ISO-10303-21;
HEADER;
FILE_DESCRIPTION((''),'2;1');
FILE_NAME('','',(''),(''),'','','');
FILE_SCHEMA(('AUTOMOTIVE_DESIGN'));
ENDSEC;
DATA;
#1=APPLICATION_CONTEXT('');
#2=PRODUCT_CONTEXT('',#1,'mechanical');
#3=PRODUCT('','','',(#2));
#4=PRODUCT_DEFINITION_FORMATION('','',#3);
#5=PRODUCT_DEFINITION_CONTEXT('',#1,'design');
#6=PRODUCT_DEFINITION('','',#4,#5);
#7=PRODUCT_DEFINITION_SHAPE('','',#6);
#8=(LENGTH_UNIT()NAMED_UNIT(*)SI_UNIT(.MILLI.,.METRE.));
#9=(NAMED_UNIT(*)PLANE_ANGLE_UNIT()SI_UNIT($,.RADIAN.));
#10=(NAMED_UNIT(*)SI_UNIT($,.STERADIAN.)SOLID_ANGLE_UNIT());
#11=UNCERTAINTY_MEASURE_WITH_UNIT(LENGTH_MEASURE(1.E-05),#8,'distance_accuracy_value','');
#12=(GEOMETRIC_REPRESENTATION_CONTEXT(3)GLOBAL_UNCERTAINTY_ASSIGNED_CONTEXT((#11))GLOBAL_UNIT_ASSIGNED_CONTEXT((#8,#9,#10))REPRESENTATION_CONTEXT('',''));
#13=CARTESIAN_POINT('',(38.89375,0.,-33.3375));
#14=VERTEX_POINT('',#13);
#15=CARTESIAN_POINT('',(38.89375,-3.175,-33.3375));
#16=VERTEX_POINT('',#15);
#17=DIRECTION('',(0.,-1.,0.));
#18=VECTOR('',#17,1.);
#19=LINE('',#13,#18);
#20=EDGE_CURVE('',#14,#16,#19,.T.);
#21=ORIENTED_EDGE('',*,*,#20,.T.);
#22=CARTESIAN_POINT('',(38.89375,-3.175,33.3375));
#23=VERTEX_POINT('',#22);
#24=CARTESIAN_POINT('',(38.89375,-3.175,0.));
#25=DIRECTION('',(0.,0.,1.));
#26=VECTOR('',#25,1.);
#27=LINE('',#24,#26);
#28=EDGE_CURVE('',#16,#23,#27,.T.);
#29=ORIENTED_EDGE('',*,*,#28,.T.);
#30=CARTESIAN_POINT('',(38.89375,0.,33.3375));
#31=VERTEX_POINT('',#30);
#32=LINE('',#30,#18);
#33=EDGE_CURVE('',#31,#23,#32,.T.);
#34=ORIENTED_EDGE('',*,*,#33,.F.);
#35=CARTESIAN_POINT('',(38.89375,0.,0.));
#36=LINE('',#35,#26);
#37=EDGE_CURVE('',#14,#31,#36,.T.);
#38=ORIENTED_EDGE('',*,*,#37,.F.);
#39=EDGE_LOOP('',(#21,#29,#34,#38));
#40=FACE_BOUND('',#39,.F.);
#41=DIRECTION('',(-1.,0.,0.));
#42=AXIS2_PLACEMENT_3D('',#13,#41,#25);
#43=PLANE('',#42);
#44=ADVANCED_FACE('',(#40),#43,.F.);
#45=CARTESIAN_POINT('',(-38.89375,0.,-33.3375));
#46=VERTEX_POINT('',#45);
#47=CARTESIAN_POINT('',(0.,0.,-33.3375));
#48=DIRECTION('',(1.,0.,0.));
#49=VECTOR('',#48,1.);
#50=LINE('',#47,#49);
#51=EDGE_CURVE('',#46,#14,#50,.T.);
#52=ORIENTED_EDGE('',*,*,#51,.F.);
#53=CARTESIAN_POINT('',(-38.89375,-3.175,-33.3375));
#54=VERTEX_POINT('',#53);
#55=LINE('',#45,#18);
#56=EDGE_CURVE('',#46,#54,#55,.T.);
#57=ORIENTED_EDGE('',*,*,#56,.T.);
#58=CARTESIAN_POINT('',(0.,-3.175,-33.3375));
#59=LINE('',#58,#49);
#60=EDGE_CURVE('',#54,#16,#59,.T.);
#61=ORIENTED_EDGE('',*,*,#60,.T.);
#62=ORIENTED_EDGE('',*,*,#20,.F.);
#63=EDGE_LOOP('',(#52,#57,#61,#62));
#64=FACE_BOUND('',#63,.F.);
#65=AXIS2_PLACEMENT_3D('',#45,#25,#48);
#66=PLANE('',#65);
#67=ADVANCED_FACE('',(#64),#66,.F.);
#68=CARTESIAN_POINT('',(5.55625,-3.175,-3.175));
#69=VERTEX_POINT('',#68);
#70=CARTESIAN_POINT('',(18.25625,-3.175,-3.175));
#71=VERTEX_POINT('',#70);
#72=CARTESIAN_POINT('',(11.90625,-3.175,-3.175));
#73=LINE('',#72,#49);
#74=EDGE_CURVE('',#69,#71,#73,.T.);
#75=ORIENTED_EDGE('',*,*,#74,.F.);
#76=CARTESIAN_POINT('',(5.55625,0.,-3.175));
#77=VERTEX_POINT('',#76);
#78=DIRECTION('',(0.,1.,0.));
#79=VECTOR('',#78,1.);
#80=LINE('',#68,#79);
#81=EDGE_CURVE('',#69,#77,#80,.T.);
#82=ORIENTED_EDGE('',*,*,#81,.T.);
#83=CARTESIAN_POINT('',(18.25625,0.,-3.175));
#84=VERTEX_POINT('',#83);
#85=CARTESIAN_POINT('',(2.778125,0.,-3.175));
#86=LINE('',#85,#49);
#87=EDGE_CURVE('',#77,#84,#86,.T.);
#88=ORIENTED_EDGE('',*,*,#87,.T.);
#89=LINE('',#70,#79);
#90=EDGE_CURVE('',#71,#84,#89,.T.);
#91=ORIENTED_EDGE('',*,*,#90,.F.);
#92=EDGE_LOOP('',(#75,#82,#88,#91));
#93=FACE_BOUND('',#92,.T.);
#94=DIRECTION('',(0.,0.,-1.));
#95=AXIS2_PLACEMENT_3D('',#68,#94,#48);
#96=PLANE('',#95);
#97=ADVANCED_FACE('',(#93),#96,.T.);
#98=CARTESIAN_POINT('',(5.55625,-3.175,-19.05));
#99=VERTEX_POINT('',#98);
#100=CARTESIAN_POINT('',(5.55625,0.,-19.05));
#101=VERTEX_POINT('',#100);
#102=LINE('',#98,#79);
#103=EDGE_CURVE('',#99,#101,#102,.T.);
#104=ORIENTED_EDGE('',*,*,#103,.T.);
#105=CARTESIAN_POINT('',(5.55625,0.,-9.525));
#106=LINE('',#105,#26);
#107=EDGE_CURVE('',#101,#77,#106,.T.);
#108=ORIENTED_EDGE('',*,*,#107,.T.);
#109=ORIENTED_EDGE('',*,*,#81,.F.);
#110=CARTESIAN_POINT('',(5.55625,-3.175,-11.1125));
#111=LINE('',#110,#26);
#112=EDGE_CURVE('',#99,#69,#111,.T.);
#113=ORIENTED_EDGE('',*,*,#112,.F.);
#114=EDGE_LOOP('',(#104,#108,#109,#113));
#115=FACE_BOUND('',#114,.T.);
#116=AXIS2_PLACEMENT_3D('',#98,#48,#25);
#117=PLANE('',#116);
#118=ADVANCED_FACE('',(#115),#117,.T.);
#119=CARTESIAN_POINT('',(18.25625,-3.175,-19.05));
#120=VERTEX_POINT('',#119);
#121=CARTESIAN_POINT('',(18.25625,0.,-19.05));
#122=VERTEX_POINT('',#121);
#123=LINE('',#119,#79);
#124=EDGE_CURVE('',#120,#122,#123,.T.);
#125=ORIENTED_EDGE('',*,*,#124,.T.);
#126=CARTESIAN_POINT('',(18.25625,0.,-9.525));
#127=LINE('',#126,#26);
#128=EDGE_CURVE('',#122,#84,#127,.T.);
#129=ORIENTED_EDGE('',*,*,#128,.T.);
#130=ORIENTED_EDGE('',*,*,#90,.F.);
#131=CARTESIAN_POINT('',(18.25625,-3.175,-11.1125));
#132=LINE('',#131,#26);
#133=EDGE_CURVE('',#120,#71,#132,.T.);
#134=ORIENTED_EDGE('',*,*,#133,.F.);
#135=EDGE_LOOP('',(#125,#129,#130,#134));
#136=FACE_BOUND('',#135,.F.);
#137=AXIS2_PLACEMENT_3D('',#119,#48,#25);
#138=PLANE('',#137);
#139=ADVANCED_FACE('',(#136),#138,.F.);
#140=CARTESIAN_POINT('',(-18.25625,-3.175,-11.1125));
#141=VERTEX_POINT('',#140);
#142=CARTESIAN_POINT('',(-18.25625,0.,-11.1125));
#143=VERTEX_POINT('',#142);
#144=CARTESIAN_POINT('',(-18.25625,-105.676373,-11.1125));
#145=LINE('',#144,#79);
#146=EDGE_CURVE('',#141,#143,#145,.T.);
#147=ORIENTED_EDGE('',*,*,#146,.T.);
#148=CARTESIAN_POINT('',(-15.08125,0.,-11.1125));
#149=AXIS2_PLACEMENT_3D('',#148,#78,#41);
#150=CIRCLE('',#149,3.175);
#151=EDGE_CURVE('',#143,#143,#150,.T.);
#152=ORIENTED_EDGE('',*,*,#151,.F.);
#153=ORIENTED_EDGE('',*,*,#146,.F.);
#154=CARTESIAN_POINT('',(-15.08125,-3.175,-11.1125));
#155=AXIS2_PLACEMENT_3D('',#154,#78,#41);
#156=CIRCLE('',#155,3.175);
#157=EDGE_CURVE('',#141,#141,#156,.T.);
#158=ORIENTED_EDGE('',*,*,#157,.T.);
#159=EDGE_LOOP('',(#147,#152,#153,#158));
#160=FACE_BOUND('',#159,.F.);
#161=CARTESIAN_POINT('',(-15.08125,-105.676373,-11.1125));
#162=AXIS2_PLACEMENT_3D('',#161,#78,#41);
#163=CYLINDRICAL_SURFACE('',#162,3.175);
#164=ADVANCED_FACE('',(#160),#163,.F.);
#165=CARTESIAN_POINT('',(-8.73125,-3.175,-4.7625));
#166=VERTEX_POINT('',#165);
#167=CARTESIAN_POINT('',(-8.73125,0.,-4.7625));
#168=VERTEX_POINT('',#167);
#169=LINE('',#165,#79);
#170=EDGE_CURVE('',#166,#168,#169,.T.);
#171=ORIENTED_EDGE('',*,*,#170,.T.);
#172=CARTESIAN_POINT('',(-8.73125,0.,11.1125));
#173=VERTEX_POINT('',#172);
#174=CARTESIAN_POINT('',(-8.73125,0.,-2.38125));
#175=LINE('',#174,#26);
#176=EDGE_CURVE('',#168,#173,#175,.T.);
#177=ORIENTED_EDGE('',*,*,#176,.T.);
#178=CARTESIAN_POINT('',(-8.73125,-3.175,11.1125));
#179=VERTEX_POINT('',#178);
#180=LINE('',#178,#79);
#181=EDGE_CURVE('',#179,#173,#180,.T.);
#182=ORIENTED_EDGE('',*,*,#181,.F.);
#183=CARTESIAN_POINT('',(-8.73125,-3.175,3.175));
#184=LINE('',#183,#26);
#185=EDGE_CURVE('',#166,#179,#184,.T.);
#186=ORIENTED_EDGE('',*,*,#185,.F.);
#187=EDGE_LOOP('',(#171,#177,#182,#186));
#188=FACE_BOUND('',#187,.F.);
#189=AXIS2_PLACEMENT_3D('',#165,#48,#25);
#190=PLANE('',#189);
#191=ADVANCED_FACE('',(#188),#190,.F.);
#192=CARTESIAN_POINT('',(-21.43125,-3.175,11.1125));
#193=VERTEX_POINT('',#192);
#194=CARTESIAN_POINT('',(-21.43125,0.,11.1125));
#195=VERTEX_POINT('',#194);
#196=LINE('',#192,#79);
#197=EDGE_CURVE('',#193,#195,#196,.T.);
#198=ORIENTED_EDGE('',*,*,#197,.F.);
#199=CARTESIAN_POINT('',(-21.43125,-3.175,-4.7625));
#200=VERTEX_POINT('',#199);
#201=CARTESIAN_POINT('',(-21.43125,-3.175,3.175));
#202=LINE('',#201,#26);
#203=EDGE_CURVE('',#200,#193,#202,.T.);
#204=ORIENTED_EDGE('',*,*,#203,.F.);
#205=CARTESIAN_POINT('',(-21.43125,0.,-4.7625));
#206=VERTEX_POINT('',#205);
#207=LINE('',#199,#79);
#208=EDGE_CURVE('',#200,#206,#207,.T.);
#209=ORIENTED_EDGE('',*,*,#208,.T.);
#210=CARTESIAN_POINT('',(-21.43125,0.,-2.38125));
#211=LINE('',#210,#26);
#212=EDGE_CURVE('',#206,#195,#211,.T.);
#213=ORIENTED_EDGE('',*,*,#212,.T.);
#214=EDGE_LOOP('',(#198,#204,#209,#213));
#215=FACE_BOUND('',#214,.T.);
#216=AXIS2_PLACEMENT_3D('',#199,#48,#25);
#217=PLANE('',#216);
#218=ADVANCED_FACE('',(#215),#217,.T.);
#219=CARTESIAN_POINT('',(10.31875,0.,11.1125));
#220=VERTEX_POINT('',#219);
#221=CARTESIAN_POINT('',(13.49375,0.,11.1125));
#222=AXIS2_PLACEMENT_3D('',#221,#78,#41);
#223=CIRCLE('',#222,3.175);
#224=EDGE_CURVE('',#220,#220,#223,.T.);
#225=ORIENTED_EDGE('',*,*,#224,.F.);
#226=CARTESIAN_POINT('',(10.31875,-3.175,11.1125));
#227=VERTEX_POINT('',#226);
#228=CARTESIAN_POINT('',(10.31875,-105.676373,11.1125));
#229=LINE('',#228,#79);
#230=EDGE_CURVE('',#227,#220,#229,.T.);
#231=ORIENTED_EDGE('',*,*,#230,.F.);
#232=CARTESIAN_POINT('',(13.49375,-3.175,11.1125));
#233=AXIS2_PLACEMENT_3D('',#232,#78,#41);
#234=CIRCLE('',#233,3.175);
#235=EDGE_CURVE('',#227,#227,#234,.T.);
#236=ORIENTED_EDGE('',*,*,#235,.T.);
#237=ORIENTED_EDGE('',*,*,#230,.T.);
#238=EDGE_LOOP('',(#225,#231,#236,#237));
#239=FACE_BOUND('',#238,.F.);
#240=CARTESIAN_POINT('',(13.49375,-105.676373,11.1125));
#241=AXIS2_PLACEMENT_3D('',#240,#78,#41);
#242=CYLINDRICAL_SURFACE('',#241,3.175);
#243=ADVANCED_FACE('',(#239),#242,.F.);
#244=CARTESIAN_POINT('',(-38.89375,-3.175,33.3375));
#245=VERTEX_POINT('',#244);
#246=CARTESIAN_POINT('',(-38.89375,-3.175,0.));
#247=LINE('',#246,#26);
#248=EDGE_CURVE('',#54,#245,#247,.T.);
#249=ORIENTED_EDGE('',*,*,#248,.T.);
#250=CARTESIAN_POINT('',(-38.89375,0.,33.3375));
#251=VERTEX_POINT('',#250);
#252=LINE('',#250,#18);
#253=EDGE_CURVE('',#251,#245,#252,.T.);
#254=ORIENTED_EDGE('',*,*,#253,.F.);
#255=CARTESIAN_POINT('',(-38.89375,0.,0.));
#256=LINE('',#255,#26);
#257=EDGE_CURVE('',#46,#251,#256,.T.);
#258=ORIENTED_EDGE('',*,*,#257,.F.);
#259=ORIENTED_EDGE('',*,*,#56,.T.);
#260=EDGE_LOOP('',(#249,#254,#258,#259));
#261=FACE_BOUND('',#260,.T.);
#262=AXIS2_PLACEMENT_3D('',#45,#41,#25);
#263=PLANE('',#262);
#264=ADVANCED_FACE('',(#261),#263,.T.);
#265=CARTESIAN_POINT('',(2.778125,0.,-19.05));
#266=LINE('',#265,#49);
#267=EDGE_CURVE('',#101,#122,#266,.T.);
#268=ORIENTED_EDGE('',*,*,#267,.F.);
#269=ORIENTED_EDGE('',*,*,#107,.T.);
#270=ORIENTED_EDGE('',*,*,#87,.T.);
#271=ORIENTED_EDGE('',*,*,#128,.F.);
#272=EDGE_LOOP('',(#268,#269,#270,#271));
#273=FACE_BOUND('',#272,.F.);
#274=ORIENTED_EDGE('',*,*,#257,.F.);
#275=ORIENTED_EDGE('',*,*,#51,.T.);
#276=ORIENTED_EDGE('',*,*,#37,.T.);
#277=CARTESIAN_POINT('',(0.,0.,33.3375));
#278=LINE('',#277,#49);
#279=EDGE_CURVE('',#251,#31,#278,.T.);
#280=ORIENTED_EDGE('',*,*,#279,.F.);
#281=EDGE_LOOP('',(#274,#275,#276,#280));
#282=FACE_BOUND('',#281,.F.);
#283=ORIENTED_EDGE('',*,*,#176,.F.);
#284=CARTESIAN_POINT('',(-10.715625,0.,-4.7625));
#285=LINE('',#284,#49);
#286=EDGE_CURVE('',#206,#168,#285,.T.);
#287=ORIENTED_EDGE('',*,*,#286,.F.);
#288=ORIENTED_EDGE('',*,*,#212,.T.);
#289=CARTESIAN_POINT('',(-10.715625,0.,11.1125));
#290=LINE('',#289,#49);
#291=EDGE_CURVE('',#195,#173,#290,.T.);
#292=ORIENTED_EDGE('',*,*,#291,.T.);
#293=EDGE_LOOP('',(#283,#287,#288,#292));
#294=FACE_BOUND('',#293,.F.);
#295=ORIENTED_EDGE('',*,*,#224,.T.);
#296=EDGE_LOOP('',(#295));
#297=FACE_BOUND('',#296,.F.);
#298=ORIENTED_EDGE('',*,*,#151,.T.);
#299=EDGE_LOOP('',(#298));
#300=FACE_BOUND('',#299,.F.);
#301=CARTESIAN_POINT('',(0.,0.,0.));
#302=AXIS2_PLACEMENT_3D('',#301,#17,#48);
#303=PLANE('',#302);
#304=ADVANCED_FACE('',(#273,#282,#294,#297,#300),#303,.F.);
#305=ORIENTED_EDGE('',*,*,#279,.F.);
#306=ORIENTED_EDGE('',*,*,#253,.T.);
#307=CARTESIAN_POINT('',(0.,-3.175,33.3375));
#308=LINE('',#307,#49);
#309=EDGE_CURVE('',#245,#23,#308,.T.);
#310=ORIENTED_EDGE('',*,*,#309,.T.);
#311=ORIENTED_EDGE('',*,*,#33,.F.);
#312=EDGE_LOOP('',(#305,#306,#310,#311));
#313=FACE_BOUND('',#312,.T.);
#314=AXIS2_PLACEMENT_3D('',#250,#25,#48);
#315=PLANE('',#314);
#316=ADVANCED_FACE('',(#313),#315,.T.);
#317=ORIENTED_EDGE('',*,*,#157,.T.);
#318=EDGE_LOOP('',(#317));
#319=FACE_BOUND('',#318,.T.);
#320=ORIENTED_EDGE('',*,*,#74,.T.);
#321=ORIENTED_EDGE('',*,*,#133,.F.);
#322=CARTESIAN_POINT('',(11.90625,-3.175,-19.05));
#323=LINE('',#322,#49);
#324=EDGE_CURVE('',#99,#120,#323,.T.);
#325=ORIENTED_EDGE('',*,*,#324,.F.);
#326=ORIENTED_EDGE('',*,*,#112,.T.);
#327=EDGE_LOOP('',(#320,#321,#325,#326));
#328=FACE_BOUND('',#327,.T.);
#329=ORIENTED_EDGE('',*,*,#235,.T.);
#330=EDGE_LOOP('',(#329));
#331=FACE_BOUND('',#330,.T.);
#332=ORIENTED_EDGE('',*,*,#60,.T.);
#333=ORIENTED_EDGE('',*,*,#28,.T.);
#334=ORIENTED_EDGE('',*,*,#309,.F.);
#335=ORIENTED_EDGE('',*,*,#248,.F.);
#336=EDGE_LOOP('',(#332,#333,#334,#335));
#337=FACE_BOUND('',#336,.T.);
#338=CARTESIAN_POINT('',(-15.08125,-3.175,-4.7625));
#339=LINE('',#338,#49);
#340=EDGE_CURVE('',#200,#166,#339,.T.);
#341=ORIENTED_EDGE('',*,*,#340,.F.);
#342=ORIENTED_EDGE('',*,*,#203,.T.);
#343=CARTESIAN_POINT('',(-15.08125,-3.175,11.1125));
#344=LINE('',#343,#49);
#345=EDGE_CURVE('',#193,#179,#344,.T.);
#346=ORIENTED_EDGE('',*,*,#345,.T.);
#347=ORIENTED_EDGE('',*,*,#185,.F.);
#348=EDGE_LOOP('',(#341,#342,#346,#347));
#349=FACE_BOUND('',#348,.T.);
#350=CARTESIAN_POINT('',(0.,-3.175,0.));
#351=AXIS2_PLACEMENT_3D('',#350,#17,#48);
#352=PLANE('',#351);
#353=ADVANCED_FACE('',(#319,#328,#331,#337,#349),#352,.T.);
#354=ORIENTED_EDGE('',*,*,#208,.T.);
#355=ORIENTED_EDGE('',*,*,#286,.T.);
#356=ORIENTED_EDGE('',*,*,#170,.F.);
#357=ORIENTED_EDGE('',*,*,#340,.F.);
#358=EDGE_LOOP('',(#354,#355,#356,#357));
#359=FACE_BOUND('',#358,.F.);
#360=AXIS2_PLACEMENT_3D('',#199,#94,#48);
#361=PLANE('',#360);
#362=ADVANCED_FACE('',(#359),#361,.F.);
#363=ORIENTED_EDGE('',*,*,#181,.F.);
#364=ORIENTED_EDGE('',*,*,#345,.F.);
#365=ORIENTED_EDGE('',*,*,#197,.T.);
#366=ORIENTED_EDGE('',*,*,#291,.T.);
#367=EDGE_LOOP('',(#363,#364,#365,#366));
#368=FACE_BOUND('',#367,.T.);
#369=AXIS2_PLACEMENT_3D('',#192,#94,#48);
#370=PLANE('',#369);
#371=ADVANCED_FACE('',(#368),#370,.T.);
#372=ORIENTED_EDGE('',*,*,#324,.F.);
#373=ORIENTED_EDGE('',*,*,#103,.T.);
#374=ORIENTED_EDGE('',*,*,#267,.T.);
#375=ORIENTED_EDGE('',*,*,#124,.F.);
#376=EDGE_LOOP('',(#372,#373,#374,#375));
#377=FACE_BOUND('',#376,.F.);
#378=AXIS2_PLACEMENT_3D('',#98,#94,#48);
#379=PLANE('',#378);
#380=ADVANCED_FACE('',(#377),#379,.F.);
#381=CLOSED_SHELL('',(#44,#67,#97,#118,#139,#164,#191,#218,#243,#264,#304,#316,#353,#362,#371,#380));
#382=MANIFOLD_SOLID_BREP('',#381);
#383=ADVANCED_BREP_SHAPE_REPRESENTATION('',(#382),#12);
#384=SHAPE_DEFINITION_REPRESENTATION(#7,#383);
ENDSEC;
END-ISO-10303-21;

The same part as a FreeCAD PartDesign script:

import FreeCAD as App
import Part
import Sketcher
from FreeCAD import Vector
Q = App.Units.Quantity

doc = App.newDocument("Part")
body = doc.addObject("PartDesign::Body", "Body")

# Sketch on XZ plane
sketch1 = doc.addObject("Sketcher::SketchObject", "Sketch")
body.addObject(sketch1)
sketch1.AttachmentSupport = (doc.XZ_Plane, [""])
sketch1.MapMode = "FlatFace"
sketch1.addGeometry(Part.LineSegment(Vector(-39, 33, 0), Vector(-39, -33, 0)), False)
sketch1.addGeometry(Part.LineSegment(Vector(-39, -33, 0), Vector(39, -33, 0)), False)
sketch1.addGeometry(Part.LineSegment(Vector(39, -33, 0), Vector(39, 33, 0)), False)
sketch1.addGeometry(Part.LineSegment(Vector(39, 33, 0), Vector(-39, 33, 0)), False)
sketch1.addConstraint(Sketcher.Constraint("Coincident", 0, 2, 1, 1))
sketch1.addConstraint(Sketcher.Constraint("Coincident", 1, 2, 2, 1))
sketch1.addConstraint(Sketcher.Constraint("Coincident", 2, 2, 3, 1))
sketch1.addConstraint(Sketcher.Constraint("Coincident", 3, 2, 0, 1))
sketch1.addConstraint(Sketcher.Constraint("Vertical", 0))
sketch1.addConstraint(Sketcher.Constraint("Horizontal", 1))
sketch1.addConstraint(Sketcher.Constraint("Vertical", 2))
sketch1.addConstraint(Sketcher.Constraint("Horizontal", 3))
sketch1.addConstraint(Sketcher.Constraint("Symmetric", 0, 2, 2, 2, -1, 1))
sketch1.addConstraint(Sketcher.Constraint("DistanceX", 1, 1, 1, 2, Q("3.0625 in")))
sketch1.addConstraint(Sketcher.Constraint("DistanceY", 0, 2, 0, 1, Q("2.625 in")))
pad1 = doc.addObject("PartDesign::Pad", "Pad")
body.addObject(pad1)
pad1.Profile = sketch1
pad1.Length = Q("0.125 in")

# Sketch on XZ plane
sketch2 = doc.addObject("Sketcher::SketchObject", "Sketch001")
body.addObject(sketch2)
sketch2.AttachmentSupport = (doc.XZ_Plane, [""])
sketch2.MapMode = "FlatFace"
sketch2.AttachmentOffset = App.Placement(Vector(0, 0, 0.125 * 25.4), App.Rotation())
sketch2.addGeometry(Part.Circle(Vector(-15.1, -11.1, 0), Vector(0, 0, 1), 3.2), False)
sketch2.addConstraint(Sketcher.Constraint("Diameter", 0, Q("0.25 in")))
sketch2.addConstraint(Sketcher.Constraint("DistanceX", 0, 3, -1, 1, Q("0.59375 in")))
sketch2.addConstraint(Sketcher.Constraint("DistanceY", 0, 3, -1, 1, Q("0.4375 in")))
doc.recompute()
hole = doc.addObject("PartDesign::Hole", "Hole")
body.addObject(hole)
hole.Profile = sketch2
hole.ThreadType = "None"
hole.Diameter = Q("0.25 in")
hole.DepthType = "ThroughAll"

# Sketch on XZ plane
sketch3 = doc.addObject("Sketcher::SketchObject", "Sketch002")
body.addObject(sketch3)
sketch3.AttachmentSupport = (doc.XZ_Plane, [""])
sketch3.MapMode = "FlatFace"
sketch3.AttachmentOffset = App.Placement(Vector(0, 0, 0.125 * 25.4), App.Rotation())
sketch3.addGeometry(Part.Circle(Vector(13.5, 11.1, 0), Vector(0, 0, 1), 3.2), False)
sketch3.addConstraint(Sketcher.Constraint("Diameter", 0, Q("0.25 in")))
sketch3.addConstraint(Sketcher.Constraint("DistanceX", -1, 1, 0, 3, Q("0.53125 in")))
sketch3.addConstraint(Sketcher.Constraint("DistanceY", -1, 1, 0, 3, Q("0.4375 in")))
doc.recompute()
hole2 = doc.addObject("PartDesign::Hole", "Hole001")
body.addObject(hole2)
hole2.Profile = sketch3
hole2.ThreadType = "None"
hole2.Diameter = Q("0.25 in")
hole2.DepthType = "ThroughAll"

# Sketch on XZ plane
sketch4 = doc.addObject("Sketcher::SketchObject", "Sketch003")
body.addObject(sketch4)
sketch4.AttachmentSupport = (doc.XZ_Plane, [""])
sketch4.MapMode = "FlatFace"
sketch4.AttachmentOffset = App.Placement(Vector(0, 0, 0.125 * 25.4), App.Rotation())
sketch4.addGeometry(Part.LineSegment(Vector(-21, 11, 0), Vector(-21, -5, 0)), False)
sketch4.addGeometry(Part.LineSegment(Vector(-21, -5, 0), Vector(-9, -5, 0)), False)
sketch4.addGeometry(Part.LineSegment(Vector(-9, -5, 0), Vector(-9, 11, 0)), False)
sketch4.addGeometry(Part.LineSegment(Vector(-9, 11, 0), Vector(-21, 11, 0)), False)
sketch4.addGeometry(Part.LineSegment(Vector(6, -3, 0), Vector(6, -19, 0)), False)
sketch4.addGeometry(Part.LineSegment(Vector(6, -19, 0), Vector(18, -19, 0)), False)
sketch4.addGeometry(Part.LineSegment(Vector(18, -19, 0), Vector(18, -3, 0)), False)
sketch4.addGeometry(Part.LineSegment(Vector(18, -3, 0), Vector(6, -3, 0)), False)
sketch4.addConstraint(Sketcher.Constraint("Coincident", 0, 2, 1, 1))
sketch4.addConstraint(Sketcher.Constraint("Coincident", 1, 2, 2, 1))
sketch4.addConstraint(Sketcher.Constraint("Coincident", 2, 2, 3, 1))
sketch4.addConstraint(Sketcher.Constraint("Coincident", 3, 2, 0, 1))
sketch4.addConstraint(Sketcher.Constraint("Coincident", 4, 2, 5, 1))
sketch4.addConstraint(Sketcher.Constraint("Coincident", 5, 2, 6, 1))
sketch4.addConstraint(Sketcher.Constraint("Coincident", 6, 2, 7, 1))
sketch4.addConstraint(Sketcher.Constraint("Coincident", 7, 2, 4, 1))
sketch4.addConstraint(Sketcher.Constraint("Vertical", 0))
sketch4.addConstraint(Sketcher.Constraint("Horizontal", 1))
sketch4.addConstraint(Sketcher.Constraint("Vertical", 2))
sketch4.addConstraint(Sketcher.Constraint("Horizontal", 3))
sketch4.addConstraint(Sketcher.Constraint("Vertical", 4))
sketch4.addConstraint(Sketcher.Constraint("Horizontal", 5))
sketch4.addConstraint(Sketcher.Constraint("Vertical", 6))
sketch4.addConstraint(Sketcher.Constraint("Horizontal", 7))
sketch4.addConstraint(Sketcher.Constraint("Equal", 3, 5))
sketch4.addConstraint(Sketcher.Constraint("Equal", 2, 4))
sketch4.addConstraint(Sketcher.Constraint("DistanceX", 1, 1, 1, 2, Q("0.5 in")))
sketch4.addConstraint(Sketcher.Constraint("DistanceY", 0, 2, 0, 1, Q("0.625 in")))
sketch4.addConstraint(Sketcher.Constraint("DistanceY", 4, 2, -1, 1, Q("0.75 in")))
sketch4.addConstraint(Sketcher.Constraint("DistanceX", 0, 2, -1, 1, Q("0.84375 in")))
sketch4.addConstraint(Sketcher.Constraint("DistanceY", 0, 2, -1, 1, Q("0.1875 in")))
sketch4.addConstraint(Sketcher.Constraint("DistanceX", -1, 1, 4, 2, Q("0.21875 in")))
pocket1 = doc.addObject("PartDesign::Pocket", "Pocket")
body.addObject(pocket1)
pocket1.Profile = sketch4
pocket1.Type = "ThroughAll"

doc.recompute()
